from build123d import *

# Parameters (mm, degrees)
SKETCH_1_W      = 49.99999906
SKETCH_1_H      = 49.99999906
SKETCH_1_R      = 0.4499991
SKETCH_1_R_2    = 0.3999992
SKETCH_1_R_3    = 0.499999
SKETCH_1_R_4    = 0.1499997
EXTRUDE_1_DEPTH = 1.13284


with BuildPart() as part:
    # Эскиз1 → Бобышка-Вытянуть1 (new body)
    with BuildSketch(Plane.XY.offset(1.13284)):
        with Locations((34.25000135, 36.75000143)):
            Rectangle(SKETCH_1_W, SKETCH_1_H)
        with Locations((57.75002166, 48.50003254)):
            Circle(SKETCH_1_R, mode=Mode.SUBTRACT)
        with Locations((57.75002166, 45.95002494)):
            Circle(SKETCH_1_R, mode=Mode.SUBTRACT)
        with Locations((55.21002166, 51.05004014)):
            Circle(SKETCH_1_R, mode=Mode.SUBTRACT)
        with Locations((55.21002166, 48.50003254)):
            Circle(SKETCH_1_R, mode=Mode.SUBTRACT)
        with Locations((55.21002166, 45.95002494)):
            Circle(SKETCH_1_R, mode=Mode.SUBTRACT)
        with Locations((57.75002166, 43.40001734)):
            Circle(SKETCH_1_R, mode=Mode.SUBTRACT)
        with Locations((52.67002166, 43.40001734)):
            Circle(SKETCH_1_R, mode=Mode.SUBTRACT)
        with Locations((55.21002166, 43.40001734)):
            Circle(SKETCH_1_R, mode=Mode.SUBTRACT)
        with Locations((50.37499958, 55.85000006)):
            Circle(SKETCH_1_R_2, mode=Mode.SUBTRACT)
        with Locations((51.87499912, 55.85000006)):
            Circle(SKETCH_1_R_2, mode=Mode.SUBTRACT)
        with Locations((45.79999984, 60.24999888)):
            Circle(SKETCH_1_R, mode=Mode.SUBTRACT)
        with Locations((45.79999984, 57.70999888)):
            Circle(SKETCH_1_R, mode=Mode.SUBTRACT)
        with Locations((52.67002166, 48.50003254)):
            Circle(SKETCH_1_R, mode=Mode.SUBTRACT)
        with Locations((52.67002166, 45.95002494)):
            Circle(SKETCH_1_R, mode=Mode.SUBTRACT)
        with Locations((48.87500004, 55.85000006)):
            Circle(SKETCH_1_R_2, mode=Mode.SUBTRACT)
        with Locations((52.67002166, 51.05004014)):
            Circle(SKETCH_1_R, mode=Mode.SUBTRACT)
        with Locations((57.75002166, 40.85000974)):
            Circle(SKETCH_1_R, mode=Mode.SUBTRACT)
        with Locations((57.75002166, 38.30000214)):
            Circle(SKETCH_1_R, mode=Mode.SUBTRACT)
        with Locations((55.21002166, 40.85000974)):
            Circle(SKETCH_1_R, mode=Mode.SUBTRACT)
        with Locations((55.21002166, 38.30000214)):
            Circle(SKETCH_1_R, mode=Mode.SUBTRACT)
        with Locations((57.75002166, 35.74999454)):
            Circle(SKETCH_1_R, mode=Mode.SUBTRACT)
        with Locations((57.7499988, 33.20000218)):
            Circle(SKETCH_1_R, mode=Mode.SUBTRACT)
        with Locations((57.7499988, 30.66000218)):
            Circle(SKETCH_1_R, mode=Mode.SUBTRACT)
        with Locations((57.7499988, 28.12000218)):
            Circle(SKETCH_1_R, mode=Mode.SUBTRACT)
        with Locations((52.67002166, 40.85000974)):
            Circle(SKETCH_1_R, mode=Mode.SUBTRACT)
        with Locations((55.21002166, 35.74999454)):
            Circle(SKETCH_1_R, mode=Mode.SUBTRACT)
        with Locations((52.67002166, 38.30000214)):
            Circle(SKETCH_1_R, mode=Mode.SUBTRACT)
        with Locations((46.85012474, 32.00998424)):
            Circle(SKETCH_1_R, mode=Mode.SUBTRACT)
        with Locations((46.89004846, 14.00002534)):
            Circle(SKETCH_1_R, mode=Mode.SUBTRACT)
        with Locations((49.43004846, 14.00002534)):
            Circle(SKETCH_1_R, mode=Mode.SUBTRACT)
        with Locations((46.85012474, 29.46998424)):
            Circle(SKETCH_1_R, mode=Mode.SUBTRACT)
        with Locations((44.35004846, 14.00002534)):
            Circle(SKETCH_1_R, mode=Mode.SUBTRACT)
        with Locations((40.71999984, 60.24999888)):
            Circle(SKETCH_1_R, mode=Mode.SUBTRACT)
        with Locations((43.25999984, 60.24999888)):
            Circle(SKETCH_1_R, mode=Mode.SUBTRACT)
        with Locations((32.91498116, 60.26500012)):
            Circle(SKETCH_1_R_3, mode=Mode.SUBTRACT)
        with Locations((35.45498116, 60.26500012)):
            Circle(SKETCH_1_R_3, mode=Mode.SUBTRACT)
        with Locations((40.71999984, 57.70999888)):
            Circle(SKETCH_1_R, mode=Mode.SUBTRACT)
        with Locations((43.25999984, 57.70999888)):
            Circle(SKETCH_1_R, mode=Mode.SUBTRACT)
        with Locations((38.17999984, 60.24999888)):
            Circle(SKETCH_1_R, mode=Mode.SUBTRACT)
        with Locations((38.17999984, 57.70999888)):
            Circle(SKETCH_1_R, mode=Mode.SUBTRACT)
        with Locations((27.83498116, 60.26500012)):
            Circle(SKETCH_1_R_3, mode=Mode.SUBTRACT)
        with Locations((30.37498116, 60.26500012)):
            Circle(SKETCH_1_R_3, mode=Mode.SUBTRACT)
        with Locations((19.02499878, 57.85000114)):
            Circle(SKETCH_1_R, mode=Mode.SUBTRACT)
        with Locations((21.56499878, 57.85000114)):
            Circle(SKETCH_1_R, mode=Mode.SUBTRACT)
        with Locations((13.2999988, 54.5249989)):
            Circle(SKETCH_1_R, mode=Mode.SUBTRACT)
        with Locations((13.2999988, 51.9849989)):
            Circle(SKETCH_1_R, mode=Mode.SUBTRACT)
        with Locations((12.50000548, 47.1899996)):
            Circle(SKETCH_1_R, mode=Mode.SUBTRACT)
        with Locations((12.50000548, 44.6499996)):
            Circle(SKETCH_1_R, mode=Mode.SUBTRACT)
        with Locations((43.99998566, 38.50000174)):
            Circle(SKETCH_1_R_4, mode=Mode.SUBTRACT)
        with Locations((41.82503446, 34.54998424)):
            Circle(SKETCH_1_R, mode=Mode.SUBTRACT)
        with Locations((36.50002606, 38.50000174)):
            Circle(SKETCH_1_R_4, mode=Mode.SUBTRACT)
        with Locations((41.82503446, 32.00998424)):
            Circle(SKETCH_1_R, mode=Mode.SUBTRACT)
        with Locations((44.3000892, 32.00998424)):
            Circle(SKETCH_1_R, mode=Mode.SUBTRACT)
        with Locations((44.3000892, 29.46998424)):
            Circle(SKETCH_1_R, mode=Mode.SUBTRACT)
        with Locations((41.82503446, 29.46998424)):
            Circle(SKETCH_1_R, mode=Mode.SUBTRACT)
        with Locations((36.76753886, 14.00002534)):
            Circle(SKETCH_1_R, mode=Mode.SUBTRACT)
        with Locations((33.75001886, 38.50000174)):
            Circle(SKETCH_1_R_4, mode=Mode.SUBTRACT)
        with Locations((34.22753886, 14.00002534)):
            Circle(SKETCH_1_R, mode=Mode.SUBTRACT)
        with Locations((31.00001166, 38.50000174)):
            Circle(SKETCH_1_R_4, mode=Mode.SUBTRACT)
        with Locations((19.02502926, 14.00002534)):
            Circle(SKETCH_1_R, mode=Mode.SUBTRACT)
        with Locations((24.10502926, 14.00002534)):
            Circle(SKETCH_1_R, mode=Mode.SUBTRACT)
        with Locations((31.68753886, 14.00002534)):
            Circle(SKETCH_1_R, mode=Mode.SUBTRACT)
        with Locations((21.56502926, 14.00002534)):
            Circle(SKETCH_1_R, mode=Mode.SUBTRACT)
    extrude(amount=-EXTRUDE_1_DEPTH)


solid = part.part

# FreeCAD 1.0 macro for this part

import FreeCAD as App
import Part
import Sketcher
from FreeCAD import Vector

doc = App.newDocument("Part")
params = doc.addObject("Spreadsheet::Sheet", "Params")
for row, (alias, value) in enumerate([
    ("sketch1_diameter", "0.999998 mm"),
    ("sketch1_diameter2", "0.899998 mm"),
    ("sketch1_diameter3", "0.299999 mm"),
    ("sketch1_diameter4", "0.799998 mm"),
    ("sketch1_width", "49.999999 mm"),
    ("pad1_length", "1.13284 mm"),
], start=1):
    params.set(f"A{row}", alias)
    params.set(f"B{row}", "=" + value)
    params.setAlias(f"B{row}", alias)

body = doc.addObject("PartDesign::Body", "Body")

sketch1 = body.newObject("Sketcher::SketchObject", "Sketch")
sketch1.AttachmentSupport = (doc.getObject("XY_Plane"), [""])
sketch1.MapMode = "FlatFace"
sketch1.AttachmentOffset = App.Placement(Vector(0, 0, 1.13284), App.Rotation())
sketch1.addGeometry([
    Part.LineSegment(Vector(9.25, 61.75, 0), Vector(9.25, 11.75, 0)),
    Part.LineSegment(Vector(9.25, 11.75, 0), Vector(59.25, 11.75, 0)),
    Part.LineSegment(Vector(59.25, 11.75, 0), Vector(59.25, 61.75, 0)),
    Part.LineSegment(Vector(59.25, 61.75, 0), Vector(9.25, 61.75, 0)),
    Part.Circle(Vector(19.03, 14, 0), Vector(0, 0, 1), 0.45),
    Part.Circle(Vector(21.57, 14, 0), Vector(0, 0, 1), 0.45),
    Part.Circle(Vector(24.11, 14, 0), Vector(0, 0, 1), 0.45),
    Part.Circle(Vector(31.69, 14, 0), Vector(0, 0, 1), 0.45),
    Part.Circle(Vector(34.23, 14, 0), Vector(0, 0, 1), 0.45),
    Part.Circle(Vector(36.77, 14, 0), Vector(0, 0, 1), 0.45),
    Part.Circle(Vector(44.35, 14, 0), Vector(0, 0, 1), 0.45),
    Part.Circle(Vector(46.89, 14, 0), Vector(0, 0, 1), 0.45),
    Part.Circle(Vector(49.43, 14, 0), Vector(0, 0, 1), 0.45),
    Part.Circle(Vector(41.83, 29.47, 0), Vector(0, 0, 1), 0.45),
    Part.Circle(Vector(44.3, 29.47, 0), Vector(0, 0, 1), 0.45),
    Part.Circle(Vector(41.83, 32.01, 0), Vector(0, 0, 1), 0.45),
    Part.Circle(Vector(44.3, 32.01, 0), Vector(0, 0, 1), 0.45),
    Part.Circle(Vector(41.83, 34.55, 0), Vector(0, 0, 1), 0.45),
    Part.Circle(Vector(46.85, 29.47, 0), Vector(0, 0, 1), 0.45),
    Part.Circle(Vector(57.75, 28.12, 0), Vector(0, 0, 1), 0.45),
    Part.Circle(Vector(57.75, 30.66, 0), Vector(0, 0, 1), 0.45),
    Part.Circle(Vector(46.85, 32.01, 0), Vector(0, 0, 1), 0.45),
    Part.Circle(Vector(57.75, 33.2, 0), Vector(0, 0, 1), 0.45),
    Part.Circle(Vector(55.21, 35.75, 0), Vector(0, 0, 1), 0.45),
    Part.Circle(Vector(57.75, 35.75, 0), Vector(0, 0, 1), 0.45),
    Part.Circle(Vector(12.5, 44.65, 0), Vector(0, 0, 1), 0.45),
    Part.Circle(Vector(12.5, 47.19, 0), Vector(0, 0, 1), 0.45),
    Part.Circle(Vector(31, 38.5, 0), Vector(0, 0, 1), 0.15),
    Part.Circle(Vector(33.75, 38.5, 0), Vector(0, 0, 1), 0.15),
    Part.Circle(Vector(13.3, 51.98, 0), Vector(0, 0, 1), 0.45),
    Part.Circle(Vector(13.3, 54.52, 0), Vector(0, 0, 1), 0.45),
    Part.Circle(Vector(19.02, 57.85, 0), Vector(0, 0, 1), 0.45),
    Part.Circle(Vector(21.56, 57.85, 0), Vector(0, 0, 1), 0.45),
    Part.Circle(Vector(27.83, 60.27, 0), Vector(0, 0, 1), 0.5),
    Part.Circle(Vector(30.37, 60.27, 0), Vector(0, 0, 1), 0.5),
    Part.Circle(Vector(32.91, 60.27, 0), Vector(0, 0, 1), 0.5),
    Part.Circle(Vector(36.5, 38.5, 0), Vector(0, 0, 1), 0.15),
    Part.Circle(Vector(44, 38.5, 0), Vector(0, 0, 1), 0.15),
    Part.Circle(Vector(52.67, 38.3, 0), Vector(0, 0, 1), 0.45),
    Part.Circle(Vector(55.21, 38.3, 0), Vector(0, 0, 1), 0.45),
    Part.Circle(Vector(57.75, 38.3, 0), Vector(0, 0, 1), 0.45),
    Part.Circle(Vector(52.67, 40.85, 0), Vector(0, 0, 1), 0.45),
    Part.Circle(Vector(55.21, 40.85, 0), Vector(0, 0, 1), 0.45),
    Part.Circle(Vector(57.75, 40.85, 0), Vector(0, 0, 1), 0.45),
    Part.Circle(Vector(52.67, 43.4, 0), Vector(0, 0, 1), 0.45),
    Part.Circle(Vector(55.21, 43.4, 0), Vector(0, 0, 1), 0.45),
    Part.Circle(Vector(52.67, 45.95, 0), Vector(0, 0, 1), 0.45),
    Part.Circle(Vector(55.21, 45.95, 0), Vector(0, 0, 1), 0.45),
    Part.Circle(Vector(57.75, 43.4, 0), Vector(0, 0, 1), 0.45),
    Part.Circle(Vector(57.75, 45.95, 0), Vector(0, 0, 1), 0.45),
    Part.Circle(Vector(52.67, 48.5, 0), Vector(0, 0, 1), 0.45),
    Part.Circle(Vector(55.21, 48.5, 0), Vector(0, 0, 1), 0.45),
    Part.Circle(Vector(57.75, 48.5, 0), Vector(0, 0, 1), 0.45),
    Part.Circle(Vector(38.18, 57.71, 0), Vector(0, 0, 1), 0.45),
    Part.Circle(Vector(40.72, 57.71, 0), Vector(0, 0, 1), 0.45),
    Part.Circle(Vector(35.45, 60.27, 0), Vector(0, 0, 1), 0.5),
    Part.Circle(Vector(38.18, 60.25, 0), Vector(0, 0, 1), 0.45),
    Part.Circle(Vector(40.72, 60.25, 0), Vector(0, 0, 1), 0.45),
    Part.Circle(Vector(43.26, 57.71, 0), Vector(0, 0, 1), 0.45),
    Part.Circle(Vector(45.8, 57.71, 0), Vector(0, 0, 1), 0.45),
    Part.Circle(Vector(43.26, 60.25, 0), Vector(0, 0, 1), 0.45),
    Part.Circle(Vector(45.8, 60.25, 0), Vector(0, 0, 1), 0.45),
    Part.Circle(Vector(52.67, 51.05, 0), Vector(0, 0, 1), 0.45),
    Part.Circle(Vector(55.21, 51.05, 0), Vector(0, 0, 1), 0.45),
    Part.Circle(Vector(48.88, 55.85, 0), Vector(0, 0, 1), 0.4),
    Part.Circle(Vector(50.37, 55.85, 0), Vector(0, 0, 1), 0.4),
    Part.Circle(Vector(51.87, 55.85, 0), Vector(0, 0, 1), 0.4),
], False)
sketch1.addConstraint([
    Sketcher.Constraint("Coincident", 0, 2, 1, 1),
    Sketcher.Constraint("Coincident", 1, 2, 2, 1),
    Sketcher.Constraint("Coincident", 2, 2, 3, 1),
    Sketcher.Constraint("Coincident", 3, 2, 0, 1),
    Sketcher.Constraint("Vertical", 0),
    Sketcher.Constraint("Horizontal", 1),
    Sketcher.Constraint("Vertical", 2),
    Sketcher.Constraint("Horizontal", 3),
    Sketcher.Constraint("Equal", 4, 5),
    Sketcher.Constraint("Equal", 5, 6),
    Sketcher.Constraint("Equal", 6, 7),
    Sketcher.Constraint("Equal", 7, 8),
    Sketcher.Constraint("Equal", 8, 9),
    Sketcher.Constraint("Equal", 9, 10),
    Sketcher.Constraint("Equal", 10, 11),
    Sketcher.Constraint("Equal", 11, 12),
    Sketcher.Constraint("Equal", 12, 13),
    Sketcher.Constraint("Equal", 13, 14),
    Sketcher.Constraint("Equal", 14, 15),
    Sketcher.Constraint("Equal", 15, 16),
    Sketcher.Constraint("Equal", 16, 17),
    Sketcher.Constraint("Equal", 17, 18),
    Sketcher.Constraint("Equal", 18, 19),
    Sketcher.Constraint("Equal", 19, 20),
    Sketcher.Constraint("Equal", 20, 21),
    Sketcher.Constraint("Equal", 21, 22),
    Sketcher.Constraint("Equal", 22, 23),
    Sketcher.Constraint("Equal", 23, 24),
    Sketcher.Constraint("Equal", 24, 25),
    Sketcher.Constraint("Equal", 25, 26),
    Sketcher.Constraint("Equal", 27, 28),
    Sketcher.Constraint("Equal", 26, 29),
    Sketcher.Constraint("Equal", 29, 30),
    Sketcher.Constraint("Equal", 30, 31),
    Sketcher.Constraint("Equal", 31, 32),
    Sketcher.Constraint("Equal", 33, 34),
    Sketcher.Constraint("Equal", 34, 35),
    Sketcher.Constraint("Equal", 28, 36),
    Sketcher.Constraint("Equal", 36, 37),
    Sketcher.Constraint("Equal", 32, 38),
    Sketcher.Constraint("Equal", 38, 39),
    Sketcher.Constraint("Equal", 39, 40),
    Sketcher.Constraint("Equal", 40, 41),
    Sketcher.Constraint("Equal", 41, 42),
    Sketcher.Constraint("Equal", 42, 43),
    Sketcher.Constraint("Equal", 43, 44),
    Sketcher.Constraint("Equal", 44, 45),
    Sketcher.Constraint("Equal", 45, 46),
    Sketcher.Constraint("Equal", 46, 47),
    Sketcher.Constraint("Equal", 47, 48),
    Sketcher.Constraint("Equal", 48, 49),
    Sketcher.Constraint("Equal", 49, 50),
    Sketcher.Constraint("Equal", 50, 51),
    Sketcher.Constraint("Equal", 51, 52),
    Sketcher.Constraint("Equal", 52, 53),
    Sketcher.Constraint("Equal", 53, 54),
    Sketcher.Constraint("Equal", 35, 55),
    Sketcher.Constraint("Equal", 54, 56),
    Sketcher.Constraint("Equal", 56, 57),
    Sketcher.Constraint("Equal", 57, 58),
    Sketcher.Constraint("Equal", 58, 59),
    Sketcher.Constraint("Equal", 59, 60),
    Sketcher.Constraint("Equal", 60, 61),
    Sketcher.Constraint("Equal", 61, 62),
    Sketcher.Constraint("Equal", 62, 63),
    Sketcher.Constraint("Equal", 64, 65),
    Sketcher.Constraint("Equal", 65, 66),
    Sketcher.Constraint("Horizontal", 4, 3, 5, 3),
    Sketcher.Constraint("Horizontal", 5, 3, 6, 3),
    Sketcher.Constraint("Horizontal", 6, 3, 7, 3),
    Sketcher.Constraint("Horizontal", 7, 3, 8, 3),
    Sketcher.Constraint("Horizontal", 8, 3, 9, 3),
    Sketcher.Constraint("Horizontal", 9, 3, 10, 3),
    Sketcher.Constraint("Horizontal", 10, 3, 11, 3),
    Sketcher.Constraint("Horizontal", 11, 3, 12, 3),
    Sketcher.Constraint("Horizontal", 13, 3, 14, 3),
    Sketcher.Constraint("Horizontal", 15, 3, 16, 3),
    Sketcher.Constraint("Horizontal", 14, 3, 18, 3),
    Sketcher.Constraint("Horizontal", 16, 3, 21, 3),
    Sketcher.Constraint("Horizontal", 23, 3, 24, 3),
    Sketcher.Constraint("Horizontal", 27, 3, 28, 3),
    Sketcher.Constraint("Horizontal", 31, 3, 32, 3),
    Sketcher.Constraint("Horizontal", 33, 3, 34, 3),
    Sketcher.Constraint("Horizontal", 34, 3, 35, 3),
    Sketcher.Constraint("Horizontal", 28, 3, 36, 3),
    Sketcher.Constraint("Horizontal", 36, 3, 37, 3),
    Sketcher.Constraint("Horizontal", 38, 3, 39, 3),
    Sketcher.Constraint("Horizontal", 39, 3, 40, 3),
    Sketcher.Constraint("Horizontal", 41, 3, 42, 3),
    Sketcher.Constraint("Horizontal", 42, 3, 43, 3),
    Sketcher.Constraint("Horizontal", 44, 3, 45, 3),
    Sketcher.Constraint("Horizontal", 46, 3, 47, 3),
    Sketcher.Constraint("Horizontal", 45, 3, 48, 3),
    Sketcher.Constraint("Horizontal", 47, 3, 49, 3),
    Sketcher.Constraint("Horizontal", 50, 3, 51, 3),
    Sketcher.Constraint("Horizontal", 51, 3, 52, 3),
    Sketcher.Constraint("Horizontal", 53, 3, 54, 3),
    Sketcher.Constraint("Horizontal", 35, 3, 55, 3),
    Sketcher.Constraint("Horizontal", 56, 3, 57, 3),
    Sketcher.Constraint("Horizontal", 54, 3, 58, 3),
    Sketcher.Constraint("Horizontal", 58, 3, 59, 3),
    Sketcher.Constraint("Horizontal", 57, 3, 60, 3),
    Sketcher.Constraint("Horizontal", 60, 3, 61, 3),
    Sketcher.Constraint("Horizontal", 62, 3, 63, 3),
    Sketcher.Constraint("Horizontal", 64, 3, 65, 3),
    Sketcher.Constraint("Horizontal", 65, 3, 66, 3),
    Sketcher.Constraint("Vertical", 13, 3, 15, 3),
    Sketcher.Constraint("Vertical", 14, 3, 16, 3),
    Sketcher.Constraint("Vertical", 15, 3, 17, 3),
    Sketcher.Constraint("Vertical", 19, 3, 20, 3),
    Sketcher.Constraint("Vertical", 18, 3, 21, 3),
    Sketcher.Constraint("Vertical", 20, 3, 22, 3),
    Sketcher.Constraint("Vertical", 25, 3, 26, 3),
    Sketcher.Constraint("Vertical", 29, 3, 30, 3),
    Sketcher.Constraint("Vertical", 23, 3, 39, 3),
    Sketcher.Constraint("Vertical", 24, 3, 40, 3),
    Sketcher.Constraint("Vertical", 38, 3, 41, 3),
    Sketcher.Constraint("Vertical", 39, 3, 42, 3),
    Sketcher.Constraint("Vertical", 40, 3, 43, 3),
    Sketcher.Constraint("Vertical", 41, 3, 44, 3),
    Sketcher.Constraint("Vertical", 42, 3, 45, 3),
    Sketcher.Constraint("Vertical", 44, 3, 46, 3),
    Sketcher.Constraint("Vertical", 45, 3, 47, 3),
    Sketcher.Constraint("Vertical", 43, 3, 48, 3),
    Sketcher.Constraint("Vertical", 48, 3, 49, 3),
    Sketcher.Constraint("Vertical", 46, 3, 50, 3),
    Sketcher.Constraint("Vertical", 47, 3, 51, 3),
    Sketcher.Constraint("Vertical", 49, 3, 52, 3),
    Sketcher.Constraint("Vertical", 53, 3, 56, 3),
    Sketcher.Constraint("Vertical", 54, 3, 57, 3),
    Sketcher.Constraint("Vertical", 58, 3, 60, 3),
    Sketcher.Constraint("Vertical", 59, 3, 61, 3),
    Sketcher.Constraint("Vertical", 50, 3, 62, 3),
    Sketcher.Constraint("Vertical", 51, 3, 63, 3),
    Sketcher.Constraint("Equal", 3, 0),
    Sketcher.Constraint("Diameter", 33, 0.999998),
    Sketcher.Constraint("Diameter", 4, 0.899998),
    Sketcher.Constraint("Diameter", 27, 0.299999),
    Sketcher.Constraint("Diameter", 64, 0.799998),
    Sketcher.Constraint("DistanceX", 1, 1, 1, 2, 49.999999),
    Sketcher.Constraint("DistanceY", -1, 1, 27, 3, 38.500002),
    Sketcher.Constraint("DistanceX", -1, 1, 29, 3, 13.299999),
    Sketcher.Constraint("DistanceX", -1, 1, 59, 3, 45.8),
    Sketcher.Constraint("DistanceX", -1, 1, 19, 3, 57.749999),
    Sketcher.Constraint("DistanceY", -1, 1, 25, 3, 44.65),
    Sketcher.Constraint("DistanceY", -1, 1, 26, 3, 47.19),
    Sketcher.Constraint("DistanceY", -1, 1, 31, 3, 57.850001),
    Sketcher.Constraint("DistanceX", -1, 1, 53, 3, 38.18),
    Sketcher.Constraint("DistanceY", -1, 1, 53, 3, 57.709999),
    Sketcher.Constraint("DistanceX", -1, 1, 54, 3, 40.72),
    Sketcher.Constraint("DistanceY", -1, 1, 56, 3, 60.249999),
    Sketcher.Constraint("DistanceX", -1, 1, 58, 3, 43.26),
    Sketcher.Constraint("DistanceY", -1, 1, 64, 3, 55.85),
    Sketcher.Constraint("DistanceX", -1, 1, 0, 2, 9.250002),
    Sketcher.Constraint("DistanceY", -1, 1, 0, 2, 11.750002),
    Sketcher.Constraint("DistanceY", -1, 1, 29, 3, 51.984999),
    Sketcher.Constraint("DistanceY", -1, 1, 30, 3, 54.524999),
    Sketcher.Constraint("DistanceX", -1, 1, 31, 3, 19.024999),
    Sketcher.Constraint("DistanceX", -1, 1, 32, 3, 21.564999),
    Sketcher.Constraint("DistanceY", -1, 1, 33, 3, 60.265),
    Sketcher.Constraint("DistanceX", -1, 1, 64, 3, 48.875),
    Sketcher.Constraint("DistanceX", -1, 1, 65, 3, 50.375),
    Sketcher.Constraint("DistanceX", -1, 1, 66, 3, 51.874999),
    Sketcher.Constraint("DistanceX", -1, 1, 4, 3, 19.025029),
    Sketcher.Constraint("DistanceX", -1, 1, 5, 3, 21.565029),
    Sketcher.Constraint("DistanceX", -1, 1, 6, 3, 24.105029),
    Sketcher.Constraint("DistanceX", -1, 1, 7, 3, 31.687539),
    Sketcher.Constraint("DistanceX", -1, 1, 8, 3, 34.227539),
    Sketcher.Constraint("DistanceX", -1, 1, 9, 3, 36.767539),
    Sketcher.Constraint("DistanceX", -1, 1, 10, 3, 44.350048),
    Sketcher.Constraint("DistanceX", -1, 1, 11, 3, 46.890048),
    Sketcher.Constraint("DistanceX", -1, 1, 12, 3, 49.430048),
    Sketcher.Constraint("DistanceX", -1, 1, 14, 3, 44.300089),
    Sketcher.Constraint("DistanceX", -1, 1, 23, 3, 55.210022),
    Sketcher.Constraint("DistanceX", -1, 1, 24, 3, 57.750022),
    Sketcher.Constraint("DistanceX", -1, 1, 27, 3, 31.000012),
    Sketcher.Constraint("DistanceX", -1, 1, 28, 3, 33.750019),
    Sketcher.Constraint("DistanceX", -1, 1, 33, 3, 27.834981),
    Sketcher.Constraint("DistanceX", -1, 1, 34, 3, 30.374981),
    Sketcher.Constraint("DistanceX", -1, 1, 35, 3, 32.914981),
    Sketcher.Constraint("DistanceX", -1, 1, 38, 3, 52.670022),
    Sketcher.Constraint("DistanceY", -1, 1, 41, 3, 40.85001),
    Sketcher.Constraint("DistanceX", -1, 1, 55, 3, 35.454981),
    Sketcher.Constraint("DistanceY", -1, 1, 62, 3, 51.05004),
    Sketcher.Constraint("DistanceY", -1, 1, 4, 3, 14.000025),
    Sketcher.Constraint("DistanceX", -1, 1, 13, 3, 41.825034),
    Sketcher.Constraint("DistanceY", -1, 1, 13, 3, 29.469984),
    Sketcher.Constraint("DistanceY", -1, 1, 15, 3, 32.009984),
    Sketcher.Constraint("DistanceY", -1, 1, 17, 3, 34.549984),
    Sketcher.Constraint("DistanceX", -1, 1, 18, 3, 46.850125),
    Sketcher.Constraint("DistanceY", -1, 1, 19, 3, 28.120002),
    Sketcher.Constraint("DistanceY", -1, 1, 20, 3, 30.660002),
    Sketcher.Constraint("DistanceY", -1, 1, 22, 3, 33.200002),
    Sketcher.Constraint("DistanceY", -1, 1, 23, 3, 35.749995),
    Sketcher.Constraint("DistanceX", -1, 1, 25, 3, 12.500005),
    Sketcher.Constraint("DistanceX", -1, 1, 36, 3, 36.500026),
    Sketcher.Constraint("DistanceX", -1, 1, 37, 3, 43.999986),
    Sketcher.Constraint("DistanceY", -1, 1, 38, 3, 38.300002),
    Sketcher.Constraint("DistanceY", -1, 1, 44, 3, 43.400017),
    Sketcher.Constraint("DistanceY", -1, 1, 46, 3, 45.950025),
    Sketcher.Constraint("DistanceY", -1, 1, 50, 3, 48.500033),
])
sketch1.setExpression("Constraints[135]", "Params.sketch1_diameter")
sketch1.setExpression("Constraints[136]", "Params.sketch1_diameter2")
sketch1.setExpression("Constraints[137]", "Params.sketch1_diameter3")
sketch1.setExpression("Constraints[138]", "Params.sketch1_diameter4")
sketch1.setExpression("Constraints[139]", "Params.sketch1_width")
pad1 = body.newObject("PartDesign::Pad", "Pad")
pad1.Profile = sketch1
pad1.setExpression("Length", "Params.pad1_length")
pad1.Reversed = True

doc.recompute()
